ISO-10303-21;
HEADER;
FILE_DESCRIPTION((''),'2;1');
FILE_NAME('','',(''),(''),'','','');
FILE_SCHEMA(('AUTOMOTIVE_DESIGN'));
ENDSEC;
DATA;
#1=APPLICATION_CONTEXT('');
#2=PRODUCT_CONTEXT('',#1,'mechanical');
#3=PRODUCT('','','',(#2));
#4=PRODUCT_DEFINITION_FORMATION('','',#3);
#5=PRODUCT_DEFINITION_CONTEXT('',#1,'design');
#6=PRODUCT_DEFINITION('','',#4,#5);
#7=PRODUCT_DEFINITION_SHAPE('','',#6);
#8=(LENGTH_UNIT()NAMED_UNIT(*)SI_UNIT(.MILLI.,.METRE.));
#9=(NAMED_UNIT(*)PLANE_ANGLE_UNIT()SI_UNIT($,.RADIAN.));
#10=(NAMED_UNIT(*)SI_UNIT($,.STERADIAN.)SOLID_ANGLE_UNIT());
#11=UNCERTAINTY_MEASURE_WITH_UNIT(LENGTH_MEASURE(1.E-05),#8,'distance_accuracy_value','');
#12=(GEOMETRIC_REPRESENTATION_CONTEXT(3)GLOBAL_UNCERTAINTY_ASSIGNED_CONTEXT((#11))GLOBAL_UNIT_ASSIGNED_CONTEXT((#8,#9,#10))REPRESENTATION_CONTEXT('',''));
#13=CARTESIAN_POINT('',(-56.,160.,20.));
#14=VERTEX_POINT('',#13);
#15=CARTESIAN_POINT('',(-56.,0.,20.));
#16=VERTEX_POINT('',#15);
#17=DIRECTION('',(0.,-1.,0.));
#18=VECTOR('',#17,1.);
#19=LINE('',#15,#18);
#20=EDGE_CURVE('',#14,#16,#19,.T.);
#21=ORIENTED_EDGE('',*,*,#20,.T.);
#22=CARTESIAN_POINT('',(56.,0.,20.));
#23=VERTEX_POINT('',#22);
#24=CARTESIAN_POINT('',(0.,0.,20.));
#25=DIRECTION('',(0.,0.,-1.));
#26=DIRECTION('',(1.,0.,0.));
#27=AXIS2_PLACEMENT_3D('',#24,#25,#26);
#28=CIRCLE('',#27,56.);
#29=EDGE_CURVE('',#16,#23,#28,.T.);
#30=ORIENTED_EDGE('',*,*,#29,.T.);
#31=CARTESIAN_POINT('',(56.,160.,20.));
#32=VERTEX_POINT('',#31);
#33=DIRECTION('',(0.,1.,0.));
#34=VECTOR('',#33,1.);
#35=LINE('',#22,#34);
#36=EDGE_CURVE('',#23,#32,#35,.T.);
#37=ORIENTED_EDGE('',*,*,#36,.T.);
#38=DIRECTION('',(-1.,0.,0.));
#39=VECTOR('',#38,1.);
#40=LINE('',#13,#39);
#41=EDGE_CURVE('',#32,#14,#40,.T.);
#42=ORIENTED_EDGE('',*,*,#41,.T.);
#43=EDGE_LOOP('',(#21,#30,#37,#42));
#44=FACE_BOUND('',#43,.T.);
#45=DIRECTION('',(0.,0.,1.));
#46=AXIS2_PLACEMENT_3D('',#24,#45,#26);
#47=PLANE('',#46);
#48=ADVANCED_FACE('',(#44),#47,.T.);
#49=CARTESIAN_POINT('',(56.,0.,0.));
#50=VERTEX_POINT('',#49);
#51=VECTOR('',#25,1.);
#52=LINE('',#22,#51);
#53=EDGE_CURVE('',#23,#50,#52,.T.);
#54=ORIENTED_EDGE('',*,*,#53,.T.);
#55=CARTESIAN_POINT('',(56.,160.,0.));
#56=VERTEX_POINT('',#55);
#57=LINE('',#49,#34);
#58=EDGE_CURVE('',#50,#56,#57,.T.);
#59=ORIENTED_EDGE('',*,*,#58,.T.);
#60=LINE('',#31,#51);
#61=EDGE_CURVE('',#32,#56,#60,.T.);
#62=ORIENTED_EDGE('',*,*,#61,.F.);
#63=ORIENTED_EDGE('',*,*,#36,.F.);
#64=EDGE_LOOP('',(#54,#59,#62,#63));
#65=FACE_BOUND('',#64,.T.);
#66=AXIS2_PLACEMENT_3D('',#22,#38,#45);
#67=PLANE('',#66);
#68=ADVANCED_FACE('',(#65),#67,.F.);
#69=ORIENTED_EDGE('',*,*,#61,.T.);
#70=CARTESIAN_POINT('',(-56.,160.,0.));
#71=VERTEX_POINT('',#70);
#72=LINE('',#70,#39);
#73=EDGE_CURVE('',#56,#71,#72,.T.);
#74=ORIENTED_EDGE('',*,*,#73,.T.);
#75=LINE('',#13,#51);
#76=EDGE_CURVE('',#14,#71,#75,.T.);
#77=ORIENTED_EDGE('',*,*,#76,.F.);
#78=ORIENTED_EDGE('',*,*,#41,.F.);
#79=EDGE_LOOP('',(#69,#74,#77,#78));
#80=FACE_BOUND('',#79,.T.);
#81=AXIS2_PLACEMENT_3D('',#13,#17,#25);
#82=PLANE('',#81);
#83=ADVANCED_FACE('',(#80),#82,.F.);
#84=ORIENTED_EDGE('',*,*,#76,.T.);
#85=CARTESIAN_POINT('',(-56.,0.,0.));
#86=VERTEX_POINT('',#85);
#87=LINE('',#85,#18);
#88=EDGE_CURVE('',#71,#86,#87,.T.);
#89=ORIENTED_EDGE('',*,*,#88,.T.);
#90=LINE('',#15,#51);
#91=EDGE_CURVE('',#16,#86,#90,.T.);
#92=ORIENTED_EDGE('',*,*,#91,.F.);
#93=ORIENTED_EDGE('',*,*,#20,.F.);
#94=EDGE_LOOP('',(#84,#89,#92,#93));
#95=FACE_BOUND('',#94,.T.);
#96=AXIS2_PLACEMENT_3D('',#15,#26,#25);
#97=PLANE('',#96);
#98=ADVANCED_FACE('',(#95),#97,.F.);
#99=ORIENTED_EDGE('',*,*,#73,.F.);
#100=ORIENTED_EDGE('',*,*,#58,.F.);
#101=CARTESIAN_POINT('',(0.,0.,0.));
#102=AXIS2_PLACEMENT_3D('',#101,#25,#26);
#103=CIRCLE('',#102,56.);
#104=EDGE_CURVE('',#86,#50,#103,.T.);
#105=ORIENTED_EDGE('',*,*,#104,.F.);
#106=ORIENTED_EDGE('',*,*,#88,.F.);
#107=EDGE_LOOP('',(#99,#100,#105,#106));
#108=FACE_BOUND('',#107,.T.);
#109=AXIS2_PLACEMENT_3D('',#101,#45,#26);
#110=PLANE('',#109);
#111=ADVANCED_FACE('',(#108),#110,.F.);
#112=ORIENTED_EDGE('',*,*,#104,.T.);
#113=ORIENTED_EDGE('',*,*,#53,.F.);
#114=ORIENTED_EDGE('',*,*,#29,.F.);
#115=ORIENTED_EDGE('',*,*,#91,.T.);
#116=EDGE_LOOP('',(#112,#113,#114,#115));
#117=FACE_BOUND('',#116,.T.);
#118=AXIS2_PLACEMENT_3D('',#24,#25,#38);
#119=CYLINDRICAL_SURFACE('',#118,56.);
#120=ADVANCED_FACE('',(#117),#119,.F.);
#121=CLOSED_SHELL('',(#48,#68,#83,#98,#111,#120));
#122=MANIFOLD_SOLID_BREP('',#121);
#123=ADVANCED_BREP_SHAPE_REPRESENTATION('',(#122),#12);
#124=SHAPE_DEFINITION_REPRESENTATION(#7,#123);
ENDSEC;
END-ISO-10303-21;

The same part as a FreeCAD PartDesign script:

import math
import FreeCAD as App
import Part
import Sketcher
from FreeCAD import Vector
Q = App.Units.Quantity

doc = App.newDocument("Part")
body = doc.addObject("PartDesign::Body", "Body")

# Sketch on XY plane
sketch1 = body.newObject("Sketcher::SketchObject", "Sketch")
sketch1.AttachmentSupport = (doc.getObject("XY_Plane"), [""])
sketch1.MapMode = "FlatFace"
sketch1.addGeometry([
    Part.LineSegment(Vector(-56, 160, 0), Vector(-56, 0, 0)),
    Part.ArcOfCircle(Part.Circle(Vector(0, 0, 0), Vector(0, 0, 1), 56), math.radians(0), math.radians(180)),
    Part.LineSegment(Vector(56, 0, 0), Vector(56, 160, 0)),
    Part.LineSegment(Vector(56, 160, 0), Vector(-56, 160, 0)),
], False)
sketch1.addConstraint([
    Sketcher.Constraint("Tangent", 0, 2, 1, 2),
    Sketcher.Constraint("Tangent", 1, 1, 2, 1),
    Sketcher.Constraint("Coincident", 2, 2, 3, 1),
    Sketcher.Constraint("Coincident", 3, 2, 0, 1),
    Sketcher.Constraint("Vertical", 0),
    Sketcher.Constraint("Vertical", 2),
    Sketcher.Constraint("Horizontal", 3),
    Sketcher.Constraint("Coincident", 1, 3, -1, 1),
    Sketcher.Constraint("Radius", 1, Q("56 mm")),
    Sketcher.Constraint("DistanceY", 0, 2, 0, 1, Q("160 mm")),
])
pad1 = body.newObject("PartDesign::Pad", "Pad")
pad1.Profile = sketch1
pad1.Length = 20

doc.recompute()
